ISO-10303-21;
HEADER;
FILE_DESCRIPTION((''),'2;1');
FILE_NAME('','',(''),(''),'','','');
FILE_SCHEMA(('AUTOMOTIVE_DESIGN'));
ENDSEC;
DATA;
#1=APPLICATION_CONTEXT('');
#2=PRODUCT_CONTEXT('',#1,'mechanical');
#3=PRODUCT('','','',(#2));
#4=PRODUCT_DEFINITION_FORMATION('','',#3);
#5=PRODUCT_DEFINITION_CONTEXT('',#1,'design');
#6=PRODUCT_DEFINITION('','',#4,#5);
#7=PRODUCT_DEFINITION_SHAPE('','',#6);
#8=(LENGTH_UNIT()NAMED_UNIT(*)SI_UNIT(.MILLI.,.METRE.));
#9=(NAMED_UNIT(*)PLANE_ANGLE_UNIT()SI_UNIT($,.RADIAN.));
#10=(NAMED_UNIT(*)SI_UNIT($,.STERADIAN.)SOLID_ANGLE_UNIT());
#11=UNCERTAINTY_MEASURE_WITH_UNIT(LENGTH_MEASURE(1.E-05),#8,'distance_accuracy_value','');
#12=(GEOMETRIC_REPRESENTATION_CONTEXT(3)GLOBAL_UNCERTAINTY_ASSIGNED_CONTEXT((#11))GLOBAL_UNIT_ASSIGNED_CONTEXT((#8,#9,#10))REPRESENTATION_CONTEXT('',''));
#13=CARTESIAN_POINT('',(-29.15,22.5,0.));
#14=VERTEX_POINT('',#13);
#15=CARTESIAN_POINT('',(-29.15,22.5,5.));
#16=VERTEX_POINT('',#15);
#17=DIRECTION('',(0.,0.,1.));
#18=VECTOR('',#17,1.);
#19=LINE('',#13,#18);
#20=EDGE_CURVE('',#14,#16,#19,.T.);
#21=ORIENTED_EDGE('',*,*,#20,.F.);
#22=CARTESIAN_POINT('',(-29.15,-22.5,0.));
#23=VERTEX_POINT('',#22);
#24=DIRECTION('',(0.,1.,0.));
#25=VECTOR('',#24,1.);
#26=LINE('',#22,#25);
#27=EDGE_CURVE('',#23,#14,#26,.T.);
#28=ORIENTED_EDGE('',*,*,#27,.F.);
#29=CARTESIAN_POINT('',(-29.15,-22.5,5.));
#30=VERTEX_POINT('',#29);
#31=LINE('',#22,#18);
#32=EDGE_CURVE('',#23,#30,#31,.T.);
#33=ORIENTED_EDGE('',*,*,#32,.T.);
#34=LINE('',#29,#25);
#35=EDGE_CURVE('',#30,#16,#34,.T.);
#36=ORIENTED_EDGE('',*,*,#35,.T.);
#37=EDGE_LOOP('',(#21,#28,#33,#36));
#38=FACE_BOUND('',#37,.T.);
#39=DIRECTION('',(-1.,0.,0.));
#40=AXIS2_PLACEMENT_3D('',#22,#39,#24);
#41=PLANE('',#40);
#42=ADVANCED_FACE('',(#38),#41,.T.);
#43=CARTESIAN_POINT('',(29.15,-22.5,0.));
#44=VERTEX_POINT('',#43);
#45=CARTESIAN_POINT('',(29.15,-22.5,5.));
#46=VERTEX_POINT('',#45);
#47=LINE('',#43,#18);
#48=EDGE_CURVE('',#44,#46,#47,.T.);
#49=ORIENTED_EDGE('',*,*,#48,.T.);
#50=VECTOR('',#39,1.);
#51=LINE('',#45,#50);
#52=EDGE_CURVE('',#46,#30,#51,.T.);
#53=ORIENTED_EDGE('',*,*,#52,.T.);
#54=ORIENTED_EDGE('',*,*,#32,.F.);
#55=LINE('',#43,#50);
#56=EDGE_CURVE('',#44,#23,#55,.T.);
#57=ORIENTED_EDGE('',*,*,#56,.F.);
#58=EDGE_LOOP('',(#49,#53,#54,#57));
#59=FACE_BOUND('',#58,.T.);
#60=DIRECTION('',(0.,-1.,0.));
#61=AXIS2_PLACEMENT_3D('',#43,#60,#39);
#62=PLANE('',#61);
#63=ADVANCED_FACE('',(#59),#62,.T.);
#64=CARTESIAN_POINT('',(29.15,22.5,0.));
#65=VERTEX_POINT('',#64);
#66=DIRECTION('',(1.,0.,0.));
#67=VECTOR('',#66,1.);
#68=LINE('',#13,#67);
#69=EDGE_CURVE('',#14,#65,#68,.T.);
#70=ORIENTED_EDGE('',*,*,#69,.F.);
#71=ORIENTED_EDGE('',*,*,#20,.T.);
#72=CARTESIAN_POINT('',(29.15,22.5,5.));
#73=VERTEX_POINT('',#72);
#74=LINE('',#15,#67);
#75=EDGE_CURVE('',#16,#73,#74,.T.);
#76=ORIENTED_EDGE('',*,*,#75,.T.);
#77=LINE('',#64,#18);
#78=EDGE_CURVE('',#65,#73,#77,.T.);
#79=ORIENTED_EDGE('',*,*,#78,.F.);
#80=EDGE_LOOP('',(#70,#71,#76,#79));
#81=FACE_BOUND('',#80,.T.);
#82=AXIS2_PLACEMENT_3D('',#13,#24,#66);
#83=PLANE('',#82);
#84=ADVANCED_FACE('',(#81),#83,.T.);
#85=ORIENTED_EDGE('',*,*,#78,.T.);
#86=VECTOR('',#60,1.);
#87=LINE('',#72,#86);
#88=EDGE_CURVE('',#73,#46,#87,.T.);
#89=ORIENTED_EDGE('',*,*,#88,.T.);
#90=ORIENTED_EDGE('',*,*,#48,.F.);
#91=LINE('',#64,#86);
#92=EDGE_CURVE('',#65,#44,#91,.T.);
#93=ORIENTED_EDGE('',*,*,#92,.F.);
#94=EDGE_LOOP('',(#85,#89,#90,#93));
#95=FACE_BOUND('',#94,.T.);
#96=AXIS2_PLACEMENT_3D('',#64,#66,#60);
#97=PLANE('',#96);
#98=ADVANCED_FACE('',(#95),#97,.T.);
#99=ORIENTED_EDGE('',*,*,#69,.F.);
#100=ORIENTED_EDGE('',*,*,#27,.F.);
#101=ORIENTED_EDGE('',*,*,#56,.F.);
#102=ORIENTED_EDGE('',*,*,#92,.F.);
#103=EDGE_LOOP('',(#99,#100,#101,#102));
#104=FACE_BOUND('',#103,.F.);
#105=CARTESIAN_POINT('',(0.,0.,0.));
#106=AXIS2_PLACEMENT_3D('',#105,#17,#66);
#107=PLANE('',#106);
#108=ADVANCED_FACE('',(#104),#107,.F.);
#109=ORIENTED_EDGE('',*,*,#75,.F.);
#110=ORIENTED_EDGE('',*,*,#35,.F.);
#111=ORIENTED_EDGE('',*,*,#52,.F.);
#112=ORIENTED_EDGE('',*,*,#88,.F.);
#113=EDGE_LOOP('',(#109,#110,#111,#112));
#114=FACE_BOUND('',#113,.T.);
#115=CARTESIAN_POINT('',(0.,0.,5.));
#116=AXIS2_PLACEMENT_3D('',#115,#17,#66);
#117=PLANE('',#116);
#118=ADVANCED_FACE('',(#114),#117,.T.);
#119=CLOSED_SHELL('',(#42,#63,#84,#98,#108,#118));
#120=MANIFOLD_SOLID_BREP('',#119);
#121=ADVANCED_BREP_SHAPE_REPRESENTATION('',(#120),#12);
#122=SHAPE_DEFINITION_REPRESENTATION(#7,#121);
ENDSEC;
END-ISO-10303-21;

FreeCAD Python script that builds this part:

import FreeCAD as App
import Part
import Sketcher

V = App.Vector

doc = App.newDocument("Part")
body = doc.addObject("PartDesign::Body", "Body")

sketch1 = doc.addObject("Sketcher::SketchObject", "Sketch")
body.addObject(sketch1)
sketch1.AttachmentSupport = (doc.XY_Plane, [""])
sketch1.MapMode = "FlatFace"
sketch1.addGeometry(Part.LineSegment(V(29.15, 22.5, 0), V(-29.15, 22.5, 0)), False)
sketch1.addGeometry(Part.LineSegment(V(-29.15, 22.5, 0), V(-29.15, -22.5, 0)), False)
sketch1.addGeometry(Part.LineSegment(V(-29.15, -22.5, 0), V(29.15, -22.5, 0)), False)
sketch1.addGeometry(Part.LineSegment(V(29.15, -22.5, 0), V(29.15, 22.5, 0)), False)
sketch1.addConstraint(Sketcher.Constraint("Coincident", 0, 2, 1, 1))
sketch1.addConstraint(Sketcher.Constraint("Coincident", 1, 2, 2, 1))
sketch1.addConstraint(Sketcher.Constraint("Coincident", 2, 2, 3, 1))
sketch1.addConstraint(Sketcher.Constraint("Coincident", 3, 2, 0, 1))
sketch1.addConstraint(Sketcher.Constraint("Horizontal", 0))
sketch1.addConstraint(Sketcher.Constraint("Vertical", 1))
sketch1.addConstraint(Sketcher.Constraint("Horizontal", 2))
sketch1.addConstraint(Sketcher.Constraint("Vertical", 3))
sketch1.addConstraint(Sketcher.Constraint("Symmetric", 0, 2, 2, 2, -1, 1))
sketch1.addConstraint(Sketcher.Constraint("DistanceX", 0, 2, 0, 1, 58.3))
sketch1.addConstraint(Sketcher.Constraint("DistanceY", 1, 2, 1, 1, 45.0))
pad1 = doc.addObject("PartDesign::Pad", "Pad")
body.addObject(pad1)
pad1.Profile = sketch1
pad1.Length = 5

doc.recompute()
